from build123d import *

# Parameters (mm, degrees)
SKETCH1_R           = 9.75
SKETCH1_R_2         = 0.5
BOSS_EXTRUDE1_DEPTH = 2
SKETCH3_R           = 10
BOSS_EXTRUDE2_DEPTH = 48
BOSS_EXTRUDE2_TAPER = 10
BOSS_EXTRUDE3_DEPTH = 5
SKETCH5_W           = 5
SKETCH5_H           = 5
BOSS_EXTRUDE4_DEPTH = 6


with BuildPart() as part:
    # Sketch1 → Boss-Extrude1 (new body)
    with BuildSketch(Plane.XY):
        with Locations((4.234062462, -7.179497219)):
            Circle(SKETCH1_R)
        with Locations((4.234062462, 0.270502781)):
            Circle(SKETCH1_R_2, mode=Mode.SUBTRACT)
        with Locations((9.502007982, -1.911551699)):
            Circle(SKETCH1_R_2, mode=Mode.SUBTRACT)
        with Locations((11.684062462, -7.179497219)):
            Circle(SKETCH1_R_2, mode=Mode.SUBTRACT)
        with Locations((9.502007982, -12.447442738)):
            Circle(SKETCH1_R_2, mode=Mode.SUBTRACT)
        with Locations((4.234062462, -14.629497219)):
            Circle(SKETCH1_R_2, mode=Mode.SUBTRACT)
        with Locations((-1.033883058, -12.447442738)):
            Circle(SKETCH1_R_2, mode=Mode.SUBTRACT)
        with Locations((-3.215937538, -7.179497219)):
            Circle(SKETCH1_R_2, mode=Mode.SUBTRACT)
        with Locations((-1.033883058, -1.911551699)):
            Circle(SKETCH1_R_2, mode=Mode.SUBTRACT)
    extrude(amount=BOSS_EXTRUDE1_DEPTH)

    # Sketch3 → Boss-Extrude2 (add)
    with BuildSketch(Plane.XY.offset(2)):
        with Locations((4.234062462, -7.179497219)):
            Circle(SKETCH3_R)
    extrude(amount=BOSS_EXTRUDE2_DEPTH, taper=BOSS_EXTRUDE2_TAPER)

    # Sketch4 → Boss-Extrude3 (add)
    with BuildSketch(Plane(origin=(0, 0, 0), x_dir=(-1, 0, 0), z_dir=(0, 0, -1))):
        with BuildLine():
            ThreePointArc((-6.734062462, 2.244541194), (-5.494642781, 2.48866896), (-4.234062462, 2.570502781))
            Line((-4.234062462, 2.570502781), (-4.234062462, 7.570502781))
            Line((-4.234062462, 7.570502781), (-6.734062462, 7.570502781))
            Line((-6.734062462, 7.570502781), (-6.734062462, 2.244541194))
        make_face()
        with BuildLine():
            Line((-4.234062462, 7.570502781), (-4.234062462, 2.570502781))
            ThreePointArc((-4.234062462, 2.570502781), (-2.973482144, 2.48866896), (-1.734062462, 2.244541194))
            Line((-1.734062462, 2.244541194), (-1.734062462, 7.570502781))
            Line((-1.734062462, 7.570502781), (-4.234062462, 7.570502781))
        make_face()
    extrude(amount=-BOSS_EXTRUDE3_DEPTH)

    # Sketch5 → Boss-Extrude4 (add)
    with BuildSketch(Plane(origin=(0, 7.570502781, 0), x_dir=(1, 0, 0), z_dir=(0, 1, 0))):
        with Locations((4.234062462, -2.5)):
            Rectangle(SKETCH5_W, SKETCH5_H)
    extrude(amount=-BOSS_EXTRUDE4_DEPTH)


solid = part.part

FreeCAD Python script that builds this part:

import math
import FreeCAD as App
import Part
import Sketcher
Q = App.Units.Quantity

doc = App.newDocument("Part")
body = doc.addObject("PartDesign::Body", "Body")

# Sketch on XY plane
sketch1 = doc.addObject("Sketcher::SketchObject", "Sketch")
body.addObject(sketch1)
sketch1.AttachmentSupport = (doc.XY_Plane, [""])
sketch1.MapMode = "FlatFace"
sketch1.addGeometry([
    Part.Circle(App.Vector(4.2, -7.2, 0), App.Vector(0, 0, 1), 9.8),  # 0
    Part.Circle(App.Vector(-1, -12.4, 0), App.Vector(0, 0, 1), 0.5),  # 1
    Part.Circle(App.Vector(4.2, -14.6, 0), App.Vector(0, 0, 1), 0.5),  # 2
    Part.Circle(App.Vector(-3.2, -7.2, 0), App.Vector(0, 0, 1), 0.5),  # 3
    Part.Circle(App.Vector(9.5, -12.4, 0), App.Vector(0, 0, 1), 0.5),  # 4
    Part.Circle(App.Vector(11.7, -7.2, 0), App.Vector(0, 0, 1), 0.5),  # 5
    Part.Circle(App.Vector(-1, -1.9, 0), App.Vector(0, 0, 1), 0.5),  # 6
    Part.Circle(App.Vector(4.2, 0.3, 0), App.Vector(0, 0, 1), 0.5),  # 7
    Part.Circle(App.Vector(9.5, -1.9, 0), App.Vector(0, 0, 1), 0.5),  # 8
], False)
sketch1.addConstraint([
    Sketcher.Constraint("Equal", 1, 2),
    Sketcher.Constraint("Equal", 2, 3),
    Sketcher.Constraint("Equal", 3, 4),
    Sketcher.Constraint("Equal", 4, 5),
    Sketcher.Constraint("Equal", 5, 6),
    Sketcher.Constraint("Equal", 6, 7),
    Sketcher.Constraint("Equal", 7, 8),
    Sketcher.Constraint("Horizontal", 0, 3, 3, 3),
    Sketcher.Constraint("Horizontal", 1, 3, 4, 3),
    Sketcher.Constraint("Horizontal", 3, 3, 5, 3),
    Sketcher.Constraint("Horizontal", 6, 3, 8, 3),
    Sketcher.Constraint("Vertical", 0, 3, 2, 3),
    Sketcher.Constraint("Vertical", 1, 3, 6, 3),
    Sketcher.Constraint("Vertical", 2, 3, 7, 3),
    Sketcher.Constraint("Vertical", 4, 3, 8, 3),
    Sketcher.Constraint("Diameter", 1, Q("1 mm")),
    Sketcher.Constraint("Diameter", 0, Q("19.5 mm")),
    Sketcher.Constraint("DistanceX", 3, 3, 5, 3, Q("14.9 mm")),
    Sketcher.Constraint("DistanceY", 2, 3, 0, 3, Q("7.45 mm")),
    Sketcher.Constraint("DistanceX", 3, 3, 0, 3, Q("7.45 mm")),
    Sketcher.Constraint("DistanceY", 0, 3, 7, 3, Q("7.45 mm")),
    Sketcher.Constraint("DistanceY", 6, 3, -1, 1, Q("1.911552 mm")),
    Sketcher.Constraint("DistanceX", 1, 3, 4, 3, Q("10.535891 mm")),
    Sketcher.Constraint("DistanceY", 1, 3, 6, 3, Q("10.535891 mm")),
    Sketcher.Constraint("DistanceX", -1, 1, 0, 3, Q("4.234062 mm")),
    Sketcher.Constraint("DistanceY", 0, 3, -1, 1, Q("7.179497 mm")),
    Sketcher.Constraint("DistanceX", 1, 3, -1, 1, Q("1.033883 mm")),
])
pad1 = doc.addObject("PartDesign::Pad", "Pad")
body.addObject(pad1)
pad1.Profile = sketch1
pad1.Length = 2

# Sketch on XY plane
sketch2 = doc.addObject("Sketcher::SketchObject", "Sketch001")
body.addObject(sketch2)
sketch2.AttachmentSupport = (doc.XY_Plane, [""])
sketch2.MapMode = "FlatFace"
sketch2.AttachmentOffset = App.Placement(App.Vector(0, 0, 2), App.Rotation())
sketch2.addGeometry(Part.Circle(App.Vector(4, -7, 0), App.Vector(0, 0, 1), 10), False)
sketch2.addConstraint([
    Sketcher.Constraint("Diameter", 0, Q("20 mm")),
    Sketcher.Constraint("DistanceX", -1, 1, 0, 3, Q("4.234062 mm")),
    Sketcher.Constraint("DistanceY", 0, 3, -1, 1, Q("7.179497 mm")),
])
pad2 = doc.addObject("PartDesign::Pad", "Pad001")
body.addObject(pad2)
pad2.Profile = sketch2
pad2.Length = 48
pad2.TaperAngle = -10

# Sketch on XY plane
sketch3 = doc.addObject("Sketcher::SketchObject", "Sketch002")
body.addObject(sketch3)
sketch3.AttachmentSupport = (doc.XY_Plane, [""])
sketch3.MapMode = "FlatFace"
sketch3.addGeometry([
    Part.ArcOfCircle(Part.Circle(App.Vector(4.2, -7.2, 0), App.Vector(0, 0, 1), 9.7), math.radians(75.14), math.radians(90)),  # 0
    Part.ArcOfCircle(Part.Circle(App.Vector(4.2, -7.2, 0), App.Vector(0, 0, 1), 9.8), math.radians(90), math.radians(104.86)),  # 1
    Part.LineSegment(App.Vector(1.7, 2.2, 0), App.Vector(1.7, 7.6, 0)),  # 2
    Part.LineSegment(App.Vector(1.7, 7.6, 0), App.Vector(6.7, 7.6, 0)),  # 3
    Part.LineSegment(App.Vector(6.7, 7.6, 0), App.Vector(6.7, 2.2, 0)),  # 4
], False)
sketch3.addConstraint([
    Sketcher.Constraint("Tangent", 0, 2, 1, 1),
    Sketcher.Constraint("Coincident", 1, 2, 2, 1),
    Sketcher.Constraint("Coincident", 2, 2, 3, 1),
    Sketcher.Constraint("Coincident", 3, 2, 4, 1),
    Sketcher.Constraint("Coincident", 4, 2, 0, 1),
    Sketcher.Constraint("Vertical", 2),
    Sketcher.Constraint("Horizontal", 3),
    Sketcher.Constraint("Vertical", 4),
    Sketcher.Constraint("Equal", 0, 1),
    Sketcher.Constraint("Horizontal", 1, 2, 4, 2),
    Sketcher.Constraint("Vertical", 1, 3, 0, 2),
    Sketcher.Constraint("DistanceX", 3, 1, 3, 2, Q("5 mm")),
    Sketcher.Constraint("Radius", 0, Q("9.75 mm")),
    Sketcher.Constraint("DistanceY", 0, 2, 2, 2, Q("5 mm")),
    Sketcher.Constraint("DistanceY", -1, 1, 1, 2, Q("2.244541 mm")),
    Sketcher.Constraint("DistanceX", -1, 1, 0, 3, Q("4.234062 mm")),
])
pad3 = doc.addObject("PartDesign::Pad", "Pad002")
body.addObject(pad3)
pad3.Profile = sketch3
pad3.Length = 5

# Sketch on XZ plane
sketch4 = doc.addObject("Sketcher::SketchObject", "Sketch003")
body.addObject(sketch4)
sketch4.AttachmentSupport = (doc.XZ_Plane, [""])
sketch4.MapMode = "FlatFace"
sketch4.AttachmentOffset = App.Placement(App.Vector(0, 0, -7.570503), App.Rotation())
sketch4.addGeometry([
    Part.LineSegment(App.Vector(2, 0, 0), App.Vector(2, 5, 0)),
    Part.LineSegment(App.Vector(2, 5, 0), App.Vector(7, 5, 0)),
    Part.LineSegment(App.Vector(7, 5, 0), App.Vector(7, 0, 0)),
    Part.LineSegment(App.Vector(7, 0, 0), App.Vector(2, 0, 0)),
], False)
sketch4.addConstraint([
    Sketcher.Constraint("Coincident", 0, 2, 1, 1),
    Sketcher.Constraint("Coincident", 1, 2, 2, 1),
    Sketcher.Constraint("Coincident", 2, 2, 3, 1),
    Sketcher.Constraint("Coincident", 3, 2, 0, 1),
    Sketcher.Constraint("Vertical", 0),
    Sketcher.Constraint("Horizontal", 1),
    Sketcher.Constraint("Vertical", 2),
    Sketcher.Constraint("Horizontal", 3),
    Sketcher.Constraint("PointOnObject", 2, 2, -1),
    Sketcher.Constraint("Equal", 3, 0),
    Sketcher.Constraint("DistanceX", 1, 1, 1, 2, Q("5 mm")),
    Sketcher.Constraint("DistanceX", -1, 1, 0, 2, Q("1.734062 mm")),
])
pad4 = doc.addObject("PartDesign::Pad", "Pad003")
body.addObject(pad4)
pad4.Profile = sketch4
pad4.Length = 6

doc.recompute()
